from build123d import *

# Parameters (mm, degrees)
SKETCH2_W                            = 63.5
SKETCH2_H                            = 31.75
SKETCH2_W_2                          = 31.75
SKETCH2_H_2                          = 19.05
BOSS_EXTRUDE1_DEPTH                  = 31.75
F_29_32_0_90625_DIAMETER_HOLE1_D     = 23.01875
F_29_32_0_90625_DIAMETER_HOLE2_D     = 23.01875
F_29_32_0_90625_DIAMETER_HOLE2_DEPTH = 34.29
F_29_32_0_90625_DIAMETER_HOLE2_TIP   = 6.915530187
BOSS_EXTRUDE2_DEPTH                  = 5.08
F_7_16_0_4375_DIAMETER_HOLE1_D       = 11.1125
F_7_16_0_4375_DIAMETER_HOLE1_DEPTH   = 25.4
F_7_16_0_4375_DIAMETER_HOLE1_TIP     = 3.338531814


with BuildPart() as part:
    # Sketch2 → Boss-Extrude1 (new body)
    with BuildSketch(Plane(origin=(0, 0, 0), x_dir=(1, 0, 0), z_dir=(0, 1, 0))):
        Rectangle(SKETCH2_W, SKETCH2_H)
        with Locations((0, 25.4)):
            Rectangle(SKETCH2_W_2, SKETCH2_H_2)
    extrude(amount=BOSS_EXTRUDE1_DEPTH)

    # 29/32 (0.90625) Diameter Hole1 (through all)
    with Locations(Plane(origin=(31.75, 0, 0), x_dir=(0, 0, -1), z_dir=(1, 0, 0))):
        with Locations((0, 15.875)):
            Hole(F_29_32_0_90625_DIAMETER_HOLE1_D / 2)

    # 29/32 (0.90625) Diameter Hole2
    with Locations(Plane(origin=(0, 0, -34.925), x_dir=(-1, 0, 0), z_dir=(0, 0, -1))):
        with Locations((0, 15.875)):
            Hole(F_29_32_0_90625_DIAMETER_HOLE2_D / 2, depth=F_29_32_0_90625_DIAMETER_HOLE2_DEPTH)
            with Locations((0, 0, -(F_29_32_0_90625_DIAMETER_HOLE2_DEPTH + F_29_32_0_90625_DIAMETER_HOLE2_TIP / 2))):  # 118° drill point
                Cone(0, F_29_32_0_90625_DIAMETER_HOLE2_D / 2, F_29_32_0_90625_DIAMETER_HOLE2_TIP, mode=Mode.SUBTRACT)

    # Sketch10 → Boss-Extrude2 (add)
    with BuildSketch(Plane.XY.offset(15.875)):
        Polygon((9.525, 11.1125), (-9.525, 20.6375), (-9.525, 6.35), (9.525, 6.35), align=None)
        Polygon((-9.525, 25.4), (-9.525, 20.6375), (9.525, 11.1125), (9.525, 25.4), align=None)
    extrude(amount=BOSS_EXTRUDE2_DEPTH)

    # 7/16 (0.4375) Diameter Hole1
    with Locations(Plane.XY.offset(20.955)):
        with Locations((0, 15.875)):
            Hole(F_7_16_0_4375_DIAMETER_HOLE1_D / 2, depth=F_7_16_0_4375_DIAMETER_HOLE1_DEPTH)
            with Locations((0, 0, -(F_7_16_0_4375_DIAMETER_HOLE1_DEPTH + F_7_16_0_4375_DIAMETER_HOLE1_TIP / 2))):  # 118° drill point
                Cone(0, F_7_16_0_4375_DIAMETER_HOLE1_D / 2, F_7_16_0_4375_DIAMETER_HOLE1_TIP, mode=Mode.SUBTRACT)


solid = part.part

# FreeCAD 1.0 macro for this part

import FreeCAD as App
import Part
import Sketcher
Q = App.Units.Quantity

doc = App.newDocument("Part")
body = doc.addObject("PartDesign::Body", "Body")

# Sketch on XZ plane
sketch1 = body.newObject("Sketcher::SketchObject", "Sketch")
sketch1.AttachmentSupport = (doc.getObject("XZ_Plane"), [""])
sketch1.MapMode = "FlatFace"
sketch1.addGeometry([
    Part.LineSegment(App.Vector(-32, -16, 0), App.Vector(-32, 16, 0)),  # 0
    Part.LineSegment(App.Vector(-32, 16, 0), App.Vector(32, 16, 0)),  # 1
    Part.LineSegment(App.Vector(32, 16, 0), App.Vector(32, -16, 0)),  # 2
    Part.LineSegment(App.Vector(32, -16, 0), App.Vector(16, -16, 0)),  # 3
    Part.LineSegment(App.Vector(16, -16, 0), App.Vector(16, -35, 0)),  # 4
    Part.LineSegment(App.Vector(16, -35, 0), App.Vector(-16, -35, 0)),  # 5
    Part.LineSegment(App.Vector(-16, -35, 0), App.Vector(-16, -16, 0)),  # 6
    Part.LineSegment(App.Vector(-16, -16, 0), App.Vector(-32, -16, 0)),  # 7
], False)
sketch1.addConstraint([
    Sketcher.Constraint("Coincident", 0, 2, 1, 1),
    Sketcher.Constraint("Coincident", 1, 2, 2, 1),
    Sketcher.Constraint("Coincident", 2, 2, 3, 1),
    Sketcher.Constraint("Coincident", 3, 2, 4, 1),
    Sketcher.Constraint("Coincident", 4, 2, 5, 1),
    Sketcher.Constraint("Coincident", 5, 2, 6, 1),
    Sketcher.Constraint("Coincident", 6, 2, 7, 1),
    Sketcher.Constraint("Coincident", 7, 2, 0, 1),
    Sketcher.Constraint("Vertical", 0),
    Sketcher.Constraint("Horizontal", 1),
    Sketcher.Constraint("Vertical", 2),
    Sketcher.Constraint("Horizontal", 3),
    Sketcher.Constraint("Vertical", 4),
    Sketcher.Constraint("Horizontal", 5),
    Sketcher.Constraint("Vertical", 6),
    Sketcher.Constraint("Horizontal", 7),
    Sketcher.Constraint("Symmetric", 0, 2, 2, 2, -1, 1),
    Sketcher.Constraint("Symmetric", 3, 2, 6, 2, -2),
    Sketcher.Constraint("Equal", 5, 0),
    Sketcher.Constraint("DistanceX", 1, 1, 1, 2, Q("2.5 in")),
    Sketcher.Constraint("DistanceY", 4, 2, 1, 2, Q("2 in")),
    Sketcher.Constraint("DistanceX", 5, 2, 5, 1, Q("1.25 in")),
])
pad1 = body.newObject("PartDesign::Pad", "Pad")
pad1.Profile = sketch1
pad1.Length = Q("1.25 in")
pad1.Reversed = True

# Sketch on YZ plane
sketch2 = body.newObject("Sketcher::SketchObject", "Sketch001")
sketch2.AttachmentSupport = (doc.getObject("YZ_Plane"), [""])
sketch2.MapMode = "FlatFace"
sketch2.AttachmentOffset = App.Placement(App.Vector(0, 0, 1.25 * 25.4), App.Rotation())
sketch2.addGeometry(Part.Circle(App.Vector(16, 0, 0), App.Vector(0, 0, 1), 12), False)
sketch2.addConstraint([
    Sketcher.Constraint("PointOnObject", 0, 3, -1),
    Sketcher.Constraint("Diameter", 0, Q("0.90625 in")),
    Sketcher.Constraint("DistanceX", -1, 1, 0, 3, Q("0.625 in")),
])
doc.recompute()
hole = body.newObject("PartDesign::Hole", "Hole")
hole.Profile = sketch2
hole.ThreadType = "None"
hole.Diameter = Q("0.90625 in")
hole.DepthType = "ThroughAll"

# Sketch on XY plane
sketch3 = body.newObject("Sketcher::SketchObject", "Sketch002")
sketch3.AttachmentSupport = (doc.getObject("XY_Plane"), [""])
sketch3.MapMode = "FlatFace"
sketch3.AttachmentOffset = App.Placement(App.Vector(0, 0, -1.375 * 25.4), App.Rotation())
sketch3.addGeometry(Part.Circle(App.Vector(0, 16, 0), App.Vector(0, 0, 1), 12), False)
sketch3.addConstraint([
    Sketcher.Constraint("PointOnObject", 0, 3, -2),
    Sketcher.Constraint("Diameter", 0, Q("0.90625 in")),
    Sketcher.Constraint("DistanceY", -1, 1, 0, 3, Q("0.625 in")),
])
doc.recompute()
hole2 = body.newObject("PartDesign::Hole", "Hole001")
hole2.Profile = sketch3
hole2.ThreadType = "None"
hole2.Diameter = Q("0.90625 in")
hole2.DepthType = "Dimension"
hole2.Depth = Q("1.35 in")
hole2.DrillPoint = "Angled"
hole2.DrillPointAngle = 118
hole2.Reversed = True

# Sketch on XY plane
sketch4 = body.newObject("Sketcher::SketchObject", "Sketch003")
sketch4.AttachmentSupport = (doc.getObject("XY_Plane"), [""])
sketch4.MapMode = "FlatFace"
sketch4.AttachmentOffset = App.Placement(App.Vector(0, 0, 0.625 * 25.4), App.Rotation())
sketch4.addGeometry([
    Part.LineSegment(App.Vector(-10, 6, 0), App.Vector(10, 6, 0)),
    Part.LineSegment(App.Vector(10, 6, 0), App.Vector(10, 25, 0)),
    Part.LineSegment(App.Vector(10, 25, 0), App.Vector(-10, 25, 0)),
    Part.LineSegment(App.Vector(-10, 25, 0), App.Vector(-10, 6, 0)),
], False)
sketch4.addConstraint([
    Sketcher.Constraint("Coincident", 0, 2, 1, 1),
    Sketcher.Constraint("Coincident", 1, 2, 2, 1),
    Sketcher.Constraint("Coincident", 2, 2, 3, 1),
    Sketcher.Constraint("Coincident", 3, 2, 0, 1),
    Sketcher.Constraint("Horizontal", 0),
    Sketcher.Constraint("Vertical", 1),
    Sketcher.Constraint("Horizontal", 2),
    Sketcher.Constraint("Vertical", 3),
    Sketcher.Constraint("Equal", 2, 1),
    Sketcher.Constraint("DistanceY", -1, 1, 1, 2, Q("1 in")),
    Sketcher.Constraint("DistanceX", 0, 1, 0, 2, Q("0.75 in")),
    Sketcher.Constraint("DistanceX", -1, 1, 0, 2, Q("0.375 in")),
])
pad2 = body.newObject("PartDesign::Pad", "Pad001")
pad2.Profile = sketch4
pad2.Length = Q("0.2 in")

# Sketch on XY plane
sketch5 = body.newObject("Sketcher::SketchObject", "Sketch004")
sketch5.AttachmentSupport = (doc.getObject("XY_Plane"), [""])
sketch5.MapMode = "FlatFace"
sketch5.AttachmentOffset = App.Placement(App.Vector(0, 0, 0.825 * 25.4), App.Rotation())
sketch5.addGeometry(Part.Circle(App.Vector(0, 16, 0), App.Vector(0, 0, 1), 6), False)
sketch5.addConstraint([
    Sketcher.Constraint("PointOnObject", 0, 3, -2),
    Sketcher.Constraint("Diameter", 0, Q("0.4375 in")),
    Sketcher.Constraint("DistanceY", -1, 1, 0, 3, Q("0.625 in")),
])
doc.recompute()
hole3 = body.newObject("PartDesign::Hole", "Hole002")
hole3.Profile = sketch5
hole3.ThreadType = "None"
hole3.Diameter = Q("0.4375 in")
hole3.DepthType = "Dimension"
hole3.Depth = Q("1 in")
hole3.DrillPoint = "Angled"
hole3.DrillPointAngle = 118

doc.recompute()
